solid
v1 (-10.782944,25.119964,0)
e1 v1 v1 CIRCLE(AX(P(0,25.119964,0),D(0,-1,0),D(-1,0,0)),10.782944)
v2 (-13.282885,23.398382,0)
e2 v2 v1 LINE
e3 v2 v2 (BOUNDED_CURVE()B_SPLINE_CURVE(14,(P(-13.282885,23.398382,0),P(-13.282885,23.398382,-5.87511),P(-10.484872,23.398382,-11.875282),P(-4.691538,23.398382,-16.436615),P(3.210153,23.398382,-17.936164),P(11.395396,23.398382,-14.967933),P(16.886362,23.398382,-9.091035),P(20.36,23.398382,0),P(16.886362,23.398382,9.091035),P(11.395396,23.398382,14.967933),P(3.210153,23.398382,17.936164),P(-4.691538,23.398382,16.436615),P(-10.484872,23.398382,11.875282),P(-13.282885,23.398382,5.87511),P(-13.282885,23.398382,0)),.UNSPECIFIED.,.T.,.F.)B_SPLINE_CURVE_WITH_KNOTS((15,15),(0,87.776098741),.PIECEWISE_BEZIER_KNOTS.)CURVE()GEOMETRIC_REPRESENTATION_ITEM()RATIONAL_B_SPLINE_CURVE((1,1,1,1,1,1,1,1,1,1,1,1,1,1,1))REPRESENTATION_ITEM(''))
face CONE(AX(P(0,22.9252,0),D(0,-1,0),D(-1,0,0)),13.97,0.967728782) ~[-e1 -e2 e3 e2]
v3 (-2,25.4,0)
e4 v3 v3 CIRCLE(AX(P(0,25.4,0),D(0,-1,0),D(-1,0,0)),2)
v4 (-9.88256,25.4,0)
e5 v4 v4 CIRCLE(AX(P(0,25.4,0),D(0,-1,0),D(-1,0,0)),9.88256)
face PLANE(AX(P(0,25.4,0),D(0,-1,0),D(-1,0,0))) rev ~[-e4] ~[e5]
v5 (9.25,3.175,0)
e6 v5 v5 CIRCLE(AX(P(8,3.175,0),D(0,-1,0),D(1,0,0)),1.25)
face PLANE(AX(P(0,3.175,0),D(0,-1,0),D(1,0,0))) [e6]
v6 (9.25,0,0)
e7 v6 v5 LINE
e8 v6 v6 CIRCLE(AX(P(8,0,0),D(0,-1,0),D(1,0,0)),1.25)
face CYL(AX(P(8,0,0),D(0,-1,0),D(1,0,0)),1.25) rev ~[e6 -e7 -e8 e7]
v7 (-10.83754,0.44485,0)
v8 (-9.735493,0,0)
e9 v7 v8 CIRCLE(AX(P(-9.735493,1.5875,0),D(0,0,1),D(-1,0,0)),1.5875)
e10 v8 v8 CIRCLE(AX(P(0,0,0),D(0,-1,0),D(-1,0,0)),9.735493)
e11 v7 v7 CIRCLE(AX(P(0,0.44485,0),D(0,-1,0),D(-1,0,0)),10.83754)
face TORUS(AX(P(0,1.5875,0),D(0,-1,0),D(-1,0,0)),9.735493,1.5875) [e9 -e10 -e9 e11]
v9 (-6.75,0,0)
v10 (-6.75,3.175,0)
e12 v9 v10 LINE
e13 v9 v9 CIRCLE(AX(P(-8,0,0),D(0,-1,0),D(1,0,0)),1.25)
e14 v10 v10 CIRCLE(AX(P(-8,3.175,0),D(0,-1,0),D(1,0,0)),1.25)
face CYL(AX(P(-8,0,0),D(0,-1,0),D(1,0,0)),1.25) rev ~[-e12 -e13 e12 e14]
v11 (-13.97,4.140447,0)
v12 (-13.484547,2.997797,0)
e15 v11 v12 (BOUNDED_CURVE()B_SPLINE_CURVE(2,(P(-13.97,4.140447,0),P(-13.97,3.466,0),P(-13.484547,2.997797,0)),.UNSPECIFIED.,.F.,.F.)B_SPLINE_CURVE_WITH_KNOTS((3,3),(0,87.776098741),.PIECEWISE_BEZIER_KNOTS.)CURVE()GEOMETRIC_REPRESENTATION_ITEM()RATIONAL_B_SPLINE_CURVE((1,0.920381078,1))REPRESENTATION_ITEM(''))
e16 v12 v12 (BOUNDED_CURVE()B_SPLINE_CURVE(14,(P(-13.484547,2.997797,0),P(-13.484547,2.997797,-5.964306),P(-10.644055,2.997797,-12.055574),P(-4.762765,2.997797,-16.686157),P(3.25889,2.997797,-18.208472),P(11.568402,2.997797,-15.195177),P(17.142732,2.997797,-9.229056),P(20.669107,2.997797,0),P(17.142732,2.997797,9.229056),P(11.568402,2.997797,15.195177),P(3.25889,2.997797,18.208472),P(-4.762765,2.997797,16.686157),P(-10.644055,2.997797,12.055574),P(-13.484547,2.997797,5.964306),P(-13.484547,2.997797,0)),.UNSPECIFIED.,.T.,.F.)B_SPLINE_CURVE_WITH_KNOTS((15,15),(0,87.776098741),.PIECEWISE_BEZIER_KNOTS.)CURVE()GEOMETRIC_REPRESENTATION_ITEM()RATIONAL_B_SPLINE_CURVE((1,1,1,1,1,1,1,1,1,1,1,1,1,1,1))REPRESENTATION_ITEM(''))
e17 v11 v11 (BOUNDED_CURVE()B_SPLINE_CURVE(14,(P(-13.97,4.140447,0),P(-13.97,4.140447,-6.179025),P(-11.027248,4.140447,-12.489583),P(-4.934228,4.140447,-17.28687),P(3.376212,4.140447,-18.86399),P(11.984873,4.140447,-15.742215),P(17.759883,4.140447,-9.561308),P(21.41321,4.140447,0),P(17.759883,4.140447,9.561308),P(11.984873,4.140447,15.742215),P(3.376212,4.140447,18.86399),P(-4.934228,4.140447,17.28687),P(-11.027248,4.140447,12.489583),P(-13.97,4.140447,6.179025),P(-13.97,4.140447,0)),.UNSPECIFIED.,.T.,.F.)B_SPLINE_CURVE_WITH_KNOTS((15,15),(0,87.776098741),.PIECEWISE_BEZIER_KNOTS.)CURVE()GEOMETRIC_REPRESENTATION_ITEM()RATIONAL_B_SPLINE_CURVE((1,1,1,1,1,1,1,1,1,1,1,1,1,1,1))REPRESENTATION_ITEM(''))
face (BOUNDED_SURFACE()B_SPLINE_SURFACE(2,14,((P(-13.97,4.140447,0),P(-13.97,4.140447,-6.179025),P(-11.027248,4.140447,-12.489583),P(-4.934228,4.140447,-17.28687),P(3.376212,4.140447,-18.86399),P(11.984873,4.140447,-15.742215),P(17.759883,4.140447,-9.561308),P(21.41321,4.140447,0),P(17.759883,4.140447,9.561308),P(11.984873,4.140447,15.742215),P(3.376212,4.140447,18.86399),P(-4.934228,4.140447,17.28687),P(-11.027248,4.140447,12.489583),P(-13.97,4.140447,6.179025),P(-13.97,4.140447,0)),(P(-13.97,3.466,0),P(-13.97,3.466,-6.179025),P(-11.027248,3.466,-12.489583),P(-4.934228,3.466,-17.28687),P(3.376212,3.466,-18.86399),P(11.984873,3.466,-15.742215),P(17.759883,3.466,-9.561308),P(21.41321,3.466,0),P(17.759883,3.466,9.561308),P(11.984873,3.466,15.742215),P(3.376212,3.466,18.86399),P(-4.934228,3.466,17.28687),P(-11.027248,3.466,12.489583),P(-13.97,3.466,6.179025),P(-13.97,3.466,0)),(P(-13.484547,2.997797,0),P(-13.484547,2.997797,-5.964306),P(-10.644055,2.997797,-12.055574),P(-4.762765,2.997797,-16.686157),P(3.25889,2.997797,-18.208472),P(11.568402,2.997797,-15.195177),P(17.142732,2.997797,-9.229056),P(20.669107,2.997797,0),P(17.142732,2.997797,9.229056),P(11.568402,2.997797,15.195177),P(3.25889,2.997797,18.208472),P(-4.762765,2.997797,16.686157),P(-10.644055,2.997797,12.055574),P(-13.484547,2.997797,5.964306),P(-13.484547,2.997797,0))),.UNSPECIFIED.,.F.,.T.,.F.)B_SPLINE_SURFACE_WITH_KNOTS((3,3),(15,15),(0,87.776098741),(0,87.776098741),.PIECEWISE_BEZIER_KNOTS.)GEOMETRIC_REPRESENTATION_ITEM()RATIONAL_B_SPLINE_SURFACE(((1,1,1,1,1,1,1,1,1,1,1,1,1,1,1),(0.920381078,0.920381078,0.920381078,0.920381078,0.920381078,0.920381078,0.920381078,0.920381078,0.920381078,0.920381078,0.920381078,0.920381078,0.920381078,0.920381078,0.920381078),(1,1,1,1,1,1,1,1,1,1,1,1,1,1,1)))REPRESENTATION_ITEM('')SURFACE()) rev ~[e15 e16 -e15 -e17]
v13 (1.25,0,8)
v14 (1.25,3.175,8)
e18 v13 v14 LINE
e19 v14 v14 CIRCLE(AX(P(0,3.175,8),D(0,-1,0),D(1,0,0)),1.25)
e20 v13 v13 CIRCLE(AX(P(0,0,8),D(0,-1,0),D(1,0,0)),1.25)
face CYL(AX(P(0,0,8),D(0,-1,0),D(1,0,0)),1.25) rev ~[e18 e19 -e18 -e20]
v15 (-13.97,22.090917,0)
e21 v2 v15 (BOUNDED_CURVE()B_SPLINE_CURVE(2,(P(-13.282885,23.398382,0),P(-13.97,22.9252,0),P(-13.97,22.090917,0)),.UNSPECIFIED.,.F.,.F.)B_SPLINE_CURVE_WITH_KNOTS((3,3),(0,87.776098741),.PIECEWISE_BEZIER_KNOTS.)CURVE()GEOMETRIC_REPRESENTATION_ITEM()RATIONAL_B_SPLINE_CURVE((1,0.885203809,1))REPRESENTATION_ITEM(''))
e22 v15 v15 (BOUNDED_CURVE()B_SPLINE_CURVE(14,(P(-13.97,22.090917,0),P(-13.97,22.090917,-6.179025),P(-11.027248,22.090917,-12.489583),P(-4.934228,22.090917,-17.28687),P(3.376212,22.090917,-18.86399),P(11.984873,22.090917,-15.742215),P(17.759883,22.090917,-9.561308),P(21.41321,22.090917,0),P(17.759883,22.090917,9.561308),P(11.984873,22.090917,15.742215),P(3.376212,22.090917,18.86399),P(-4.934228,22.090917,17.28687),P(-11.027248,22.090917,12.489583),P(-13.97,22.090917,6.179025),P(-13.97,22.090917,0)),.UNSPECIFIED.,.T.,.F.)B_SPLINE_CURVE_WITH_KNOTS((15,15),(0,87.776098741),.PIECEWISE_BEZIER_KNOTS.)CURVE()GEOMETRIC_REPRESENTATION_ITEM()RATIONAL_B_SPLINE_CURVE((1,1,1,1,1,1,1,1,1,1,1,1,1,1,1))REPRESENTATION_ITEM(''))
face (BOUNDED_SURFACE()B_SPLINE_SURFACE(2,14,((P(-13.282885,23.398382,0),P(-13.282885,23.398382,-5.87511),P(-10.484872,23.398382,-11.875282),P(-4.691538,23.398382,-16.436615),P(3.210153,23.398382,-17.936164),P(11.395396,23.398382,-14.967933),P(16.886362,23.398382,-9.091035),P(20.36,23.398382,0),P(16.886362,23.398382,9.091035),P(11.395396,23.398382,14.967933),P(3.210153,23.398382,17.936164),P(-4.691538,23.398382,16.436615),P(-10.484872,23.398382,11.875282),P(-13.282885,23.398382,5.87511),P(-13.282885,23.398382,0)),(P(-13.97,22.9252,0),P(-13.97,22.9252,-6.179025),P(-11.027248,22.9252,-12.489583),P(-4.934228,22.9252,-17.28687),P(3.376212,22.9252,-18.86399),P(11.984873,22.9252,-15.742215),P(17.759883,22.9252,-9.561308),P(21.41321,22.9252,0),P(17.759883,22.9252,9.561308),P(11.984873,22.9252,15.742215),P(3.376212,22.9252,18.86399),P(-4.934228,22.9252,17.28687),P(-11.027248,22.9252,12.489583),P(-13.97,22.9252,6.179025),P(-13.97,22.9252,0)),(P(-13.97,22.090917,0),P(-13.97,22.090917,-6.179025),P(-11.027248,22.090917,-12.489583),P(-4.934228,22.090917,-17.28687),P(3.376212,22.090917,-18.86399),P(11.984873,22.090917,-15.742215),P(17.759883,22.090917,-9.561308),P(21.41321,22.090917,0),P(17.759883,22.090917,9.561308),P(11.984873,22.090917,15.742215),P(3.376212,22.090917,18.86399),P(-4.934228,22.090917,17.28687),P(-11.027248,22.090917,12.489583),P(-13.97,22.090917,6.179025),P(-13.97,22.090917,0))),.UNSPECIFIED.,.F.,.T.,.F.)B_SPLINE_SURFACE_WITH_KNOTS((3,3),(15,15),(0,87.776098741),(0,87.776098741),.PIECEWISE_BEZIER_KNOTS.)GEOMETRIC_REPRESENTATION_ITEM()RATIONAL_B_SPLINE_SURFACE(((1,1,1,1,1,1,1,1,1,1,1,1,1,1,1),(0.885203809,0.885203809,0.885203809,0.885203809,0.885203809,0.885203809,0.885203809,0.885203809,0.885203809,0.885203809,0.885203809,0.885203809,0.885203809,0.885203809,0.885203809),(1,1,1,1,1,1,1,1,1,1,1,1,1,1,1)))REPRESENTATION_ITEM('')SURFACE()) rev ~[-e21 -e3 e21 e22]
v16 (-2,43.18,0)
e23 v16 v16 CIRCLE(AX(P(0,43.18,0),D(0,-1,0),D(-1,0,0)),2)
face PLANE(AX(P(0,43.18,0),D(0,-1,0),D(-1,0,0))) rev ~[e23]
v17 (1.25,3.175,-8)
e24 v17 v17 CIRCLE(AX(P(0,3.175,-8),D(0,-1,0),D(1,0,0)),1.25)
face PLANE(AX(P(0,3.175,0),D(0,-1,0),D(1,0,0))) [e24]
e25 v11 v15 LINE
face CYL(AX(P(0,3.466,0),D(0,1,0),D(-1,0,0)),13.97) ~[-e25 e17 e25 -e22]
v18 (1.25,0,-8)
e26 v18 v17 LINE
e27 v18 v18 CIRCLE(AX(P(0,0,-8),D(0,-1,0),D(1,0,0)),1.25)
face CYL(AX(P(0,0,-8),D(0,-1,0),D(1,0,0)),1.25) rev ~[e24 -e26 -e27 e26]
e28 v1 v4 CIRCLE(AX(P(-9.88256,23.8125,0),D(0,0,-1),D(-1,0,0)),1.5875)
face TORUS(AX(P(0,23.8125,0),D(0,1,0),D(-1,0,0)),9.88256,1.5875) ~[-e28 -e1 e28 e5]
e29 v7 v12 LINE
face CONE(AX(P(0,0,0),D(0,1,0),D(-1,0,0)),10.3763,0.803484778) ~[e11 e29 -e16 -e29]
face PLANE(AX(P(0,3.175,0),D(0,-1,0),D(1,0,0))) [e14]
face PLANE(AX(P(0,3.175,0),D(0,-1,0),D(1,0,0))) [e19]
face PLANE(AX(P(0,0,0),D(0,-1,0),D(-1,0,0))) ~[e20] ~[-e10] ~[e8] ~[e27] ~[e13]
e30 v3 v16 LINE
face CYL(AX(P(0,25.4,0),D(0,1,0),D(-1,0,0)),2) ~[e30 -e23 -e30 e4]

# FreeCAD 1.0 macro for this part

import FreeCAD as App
import Part
import Sketcher
from FreeCAD import Vector
Q = App.Units.Quantity


def edges_at(feature, points):
    """Names of the edges that pass closest to the given points."""
    edges = feature.Shape.Edges
    near = lambda p: min(range(len(edges)), key=lambda i: edges[i].distToShape(Part.Vertex(*p))[0])
    return sorted({f"Edge{near(p) + 1}" for p in points})

doc = App.newDocument("Part")
body = doc.addObject("PartDesign::Body", "Body")

sketch1 = body.newObject("Sketcher::SketchObject", "Sketch")
sketch1.AttachmentSupport = (doc.getObject("XY_Plane"), [""])
sketch1.MapMode = "FlatFace"
sketch1.addGeometry([
    Part.LineSegment(Vector(0, 0, 0), Vector(0, 43.2, 0)),
    Part.LineSegment(Vector(0, 43.2, 0), Vector(-2, 43.2, 0)),
    Part.LineSegment(Vector(-2, 43.2, 0), Vector(-2, 25.4, 0)),
    Part.LineSegment(Vector(-2, 25.4, 0), Vector(-10.4, 25.4, 0)),
    Part.LineSegment(Vector(-10.4, 25.4, 0), Vector(-14, 22.9, 0)),
    Part.LineSegment(Vector(-14, 22.9, 0), Vector(-14, 3.5, 0)),
    Part.LineSegment(Vector(-14, 3.5, 0), Vector(-10.4, 0, 0)),
    Part.LineSegment(Vector(-10.4, 0, 0), Vector(0, 0, 0)),
], False)
sketch1.addConstraint([
    Sketcher.Constraint("Coincident", 0, 2, 1, 1),
    Sketcher.Constraint("Coincident", 1, 2, 2, 1),
    Sketcher.Constraint("Coincident", 2, 2, 3, 1),
    Sketcher.Constraint("Coincident", 3, 2, 4, 1),
    Sketcher.Constraint("Coincident", 4, 2, 5, 1),
    Sketcher.Constraint("Coincident", 5, 2, 6, 1),
    Sketcher.Constraint("Coincident", 6, 2, 7, 1),
    Sketcher.Constraint("Coincident", 7, 2, 0, 1),
    Sketcher.Constraint("Vertical", 0),
    Sketcher.Constraint("Horizontal", 1),
    Sketcher.Constraint("Vertical", 2),
    Sketcher.Constraint("Horizontal", 3),
    Sketcher.Constraint("Vertical", 5),
    Sketcher.Constraint("Horizontal", 7),
    Sketcher.Constraint("Coincident", 7, 2, -1, 1),
    Sketcher.Constraint("Vertical", 3, 2, 6, 2),
    Sketcher.Constraint("DistanceY", 2, 2, 2, 1, Q("0.7 in")),
    Sketcher.Constraint("DistanceY", -1, 1, 2, 2, Q("1 in")),
    Sketcher.Constraint("DistanceX", 4, 2, -1, 1, Q("0.55 in")),
    Sketcher.Constraint("DistanceX", 1, 2, 1, 1, Q("2 mm")),
    Sketcher.Constraint("DistanceY", 5, 2, 5, 1, Q("0.7661 in")),
    Sketcher.Constraint("DistanceX", 3, 2, 3, 1, Q("8.3763 mm")),
    Sketcher.Constraint("Distance", 4, Q("4.3634 mm")),
])
revolution = body.newObject("PartDesign::Revolution", "Revolution")
revolution.Profile = sketch1
revolution.ReferenceAxis = (sketch1, ["V_Axis"])
revolution.Angle = 360
doc.recompute()

fillet = body.newObject("PartDesign::Fillet", "Fillet")
fillet.Base = (revolution, edges_at(revolution, [(10.376, 25.4, 0)]))
fillet.Radius = Q("0.0625 in")
doc.recompute()

fillet2 = body.newObject("PartDesign::Fillet", "Fillet001")
fillet2.Base = (fillet, edges_at(fillet, [(13.97, 22.925, 0)]))
fillet2.Radius = Q("0.0625 in")
doc.recompute()

fillet3 = body.newObject("PartDesign::Fillet", "Fillet002")
fillet3.Base = (fillet2, edges_at(fillet2, [(13.97, 3.466, 0), (10.376, 0, 0)]))
fillet3.Radius = Q("0.0625 in")

sketch2 = body.newObject("Sketcher::SketchObject", "Sketch001")
sketch2.AttachmentSupport = (doc.getObject("XZ_Plane"), [""])
sketch2.MapMode = "FlatFace"
sketch2.addGeometry([
    Part.Circle(Vector(8, 0, 0), Vector(0, 0, 1), 1.2),
    Part.Circle(Vector(0, 8, 0), Vector(0, 0, 1), 1.2),
    Part.Circle(Vector(-8, 0, 0), Vector(0, 0, 1), 1.2),
    Part.Circle(Vector(0, -8, 0), Vector(0, 0, 1), 1.2),
], False)
sketch2.addConstraint([
    Sketcher.Constraint("Equal", 0, 1),
    Sketcher.Constraint("Equal", 1, 2),
    Sketcher.Constraint("Equal", 2, 3),
    Sketcher.Constraint("Symmetric", 0, 3, 2, 3, -1, 1),
    Sketcher.Constraint("Symmetric", 1, 3, 3, 3, -1, 1),
    Sketcher.Constraint("PointOnObject", 0, 3, -1),
    Sketcher.Constraint("PointOnObject", 1, 3, -2),
    Sketcher.Constraint("Diameter", 0, Q("2.5 mm")),
    Sketcher.Constraint("DistanceX", -1, 1, 0, 3, Q("8 mm")),
    Sketcher.Constraint("DistanceY", -1, 1, 1, 3, Q("8 mm")),
])
pocket1 = body.newObject("PartDesign::Pocket", "Pocket")
pocket1.Profile = sketch2
pocket1.Length = Q("0.125 in")

doc.recompute()
